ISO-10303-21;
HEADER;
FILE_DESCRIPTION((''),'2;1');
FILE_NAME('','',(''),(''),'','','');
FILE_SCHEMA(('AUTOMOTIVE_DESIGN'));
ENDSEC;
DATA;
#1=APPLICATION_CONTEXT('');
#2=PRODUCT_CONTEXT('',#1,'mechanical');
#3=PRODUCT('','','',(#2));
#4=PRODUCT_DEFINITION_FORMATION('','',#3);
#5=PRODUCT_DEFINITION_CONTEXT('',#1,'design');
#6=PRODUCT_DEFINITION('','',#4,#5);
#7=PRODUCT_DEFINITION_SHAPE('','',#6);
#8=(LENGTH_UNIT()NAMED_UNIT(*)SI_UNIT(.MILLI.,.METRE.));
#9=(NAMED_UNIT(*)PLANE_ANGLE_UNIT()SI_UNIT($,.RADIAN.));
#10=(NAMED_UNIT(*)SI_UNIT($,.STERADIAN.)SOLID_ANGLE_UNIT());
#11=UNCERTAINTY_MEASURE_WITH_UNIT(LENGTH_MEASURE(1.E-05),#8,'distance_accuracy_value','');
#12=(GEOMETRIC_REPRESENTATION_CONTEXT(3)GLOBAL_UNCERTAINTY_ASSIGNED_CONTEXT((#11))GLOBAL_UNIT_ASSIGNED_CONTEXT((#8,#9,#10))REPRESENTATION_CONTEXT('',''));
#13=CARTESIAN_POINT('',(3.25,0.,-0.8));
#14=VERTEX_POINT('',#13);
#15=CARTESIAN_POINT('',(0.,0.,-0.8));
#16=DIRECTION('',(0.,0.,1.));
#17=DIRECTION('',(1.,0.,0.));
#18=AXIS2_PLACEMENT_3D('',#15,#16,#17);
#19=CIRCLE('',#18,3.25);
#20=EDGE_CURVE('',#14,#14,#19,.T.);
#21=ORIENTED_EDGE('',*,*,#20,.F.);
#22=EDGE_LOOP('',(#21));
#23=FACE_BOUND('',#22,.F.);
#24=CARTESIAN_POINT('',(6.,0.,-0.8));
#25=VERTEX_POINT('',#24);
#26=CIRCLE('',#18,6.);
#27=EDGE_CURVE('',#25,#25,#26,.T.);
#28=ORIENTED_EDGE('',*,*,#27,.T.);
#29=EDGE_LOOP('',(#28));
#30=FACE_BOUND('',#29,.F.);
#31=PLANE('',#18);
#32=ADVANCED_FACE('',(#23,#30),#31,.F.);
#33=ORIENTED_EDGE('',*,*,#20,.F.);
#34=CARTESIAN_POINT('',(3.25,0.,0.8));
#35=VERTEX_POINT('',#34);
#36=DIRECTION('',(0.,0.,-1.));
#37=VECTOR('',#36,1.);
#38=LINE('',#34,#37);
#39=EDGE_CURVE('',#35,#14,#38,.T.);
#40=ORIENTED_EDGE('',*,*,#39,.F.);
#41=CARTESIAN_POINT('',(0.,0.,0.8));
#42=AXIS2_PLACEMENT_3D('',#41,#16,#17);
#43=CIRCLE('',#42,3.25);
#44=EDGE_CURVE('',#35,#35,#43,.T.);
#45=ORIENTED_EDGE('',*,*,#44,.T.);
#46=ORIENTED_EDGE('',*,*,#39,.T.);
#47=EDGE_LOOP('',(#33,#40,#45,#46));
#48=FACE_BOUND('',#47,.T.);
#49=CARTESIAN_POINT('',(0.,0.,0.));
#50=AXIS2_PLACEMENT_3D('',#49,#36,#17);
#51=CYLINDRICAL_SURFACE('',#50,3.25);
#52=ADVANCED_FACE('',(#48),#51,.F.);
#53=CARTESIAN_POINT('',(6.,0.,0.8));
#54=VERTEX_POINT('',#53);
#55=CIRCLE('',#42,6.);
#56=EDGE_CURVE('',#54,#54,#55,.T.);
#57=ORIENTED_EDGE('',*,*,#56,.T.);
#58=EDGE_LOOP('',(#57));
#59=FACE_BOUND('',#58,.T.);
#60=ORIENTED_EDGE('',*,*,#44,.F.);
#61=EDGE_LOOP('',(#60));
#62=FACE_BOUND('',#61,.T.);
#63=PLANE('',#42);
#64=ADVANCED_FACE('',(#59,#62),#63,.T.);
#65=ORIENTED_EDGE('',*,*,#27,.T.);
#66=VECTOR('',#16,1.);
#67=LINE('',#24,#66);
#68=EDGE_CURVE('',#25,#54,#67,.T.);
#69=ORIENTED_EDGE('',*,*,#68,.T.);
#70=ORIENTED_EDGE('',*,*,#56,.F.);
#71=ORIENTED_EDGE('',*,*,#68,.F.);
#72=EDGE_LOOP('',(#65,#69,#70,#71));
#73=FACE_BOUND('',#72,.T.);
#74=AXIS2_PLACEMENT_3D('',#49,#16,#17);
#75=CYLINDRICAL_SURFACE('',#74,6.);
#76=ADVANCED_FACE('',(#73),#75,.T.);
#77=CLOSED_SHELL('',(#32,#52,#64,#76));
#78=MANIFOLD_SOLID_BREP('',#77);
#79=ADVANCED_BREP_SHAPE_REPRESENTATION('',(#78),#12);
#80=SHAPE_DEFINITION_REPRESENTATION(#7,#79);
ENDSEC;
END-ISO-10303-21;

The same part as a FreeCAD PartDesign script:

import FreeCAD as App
import Part
import Sketcher
Q = App.Units.Quantity

doc = App.newDocument("Part")
body = doc.addObject("PartDesign::Body", "Body")

sketch1 = body.newObject("Sketcher::SketchObject", "Sketch")
sketch1.AttachmentSupport = (doc.getObject("XY_Plane"), [""])
sketch1.MapMode = "FlatFace"
sketch1.addGeometry([
    Part.Circle(App.Vector(0, 0, 0), App.Vector(0, 0, 1), 6),
    Part.Circle(App.Vector(0, 0, 0), App.Vector(0, 0, 1), 3.25),
], False)
sketch1.addConstraint([
    Sketcher.Constraint("Coincident", 0, 3, -1, 1),
    Sketcher.Constraint("Coincident", 1, 3, -1, 1),
    Sketcher.Constraint("Diameter", 0, Q("12 mm")),
    Sketcher.Constraint("Diameter", 1, Q("6.5 mm")),
])
pad1 = body.newObject("PartDesign::Pad", "Pad")
pad1.Profile = sketch1
pad1.Length = 1.6
pad1.Midplane = True

doc.recompute()
